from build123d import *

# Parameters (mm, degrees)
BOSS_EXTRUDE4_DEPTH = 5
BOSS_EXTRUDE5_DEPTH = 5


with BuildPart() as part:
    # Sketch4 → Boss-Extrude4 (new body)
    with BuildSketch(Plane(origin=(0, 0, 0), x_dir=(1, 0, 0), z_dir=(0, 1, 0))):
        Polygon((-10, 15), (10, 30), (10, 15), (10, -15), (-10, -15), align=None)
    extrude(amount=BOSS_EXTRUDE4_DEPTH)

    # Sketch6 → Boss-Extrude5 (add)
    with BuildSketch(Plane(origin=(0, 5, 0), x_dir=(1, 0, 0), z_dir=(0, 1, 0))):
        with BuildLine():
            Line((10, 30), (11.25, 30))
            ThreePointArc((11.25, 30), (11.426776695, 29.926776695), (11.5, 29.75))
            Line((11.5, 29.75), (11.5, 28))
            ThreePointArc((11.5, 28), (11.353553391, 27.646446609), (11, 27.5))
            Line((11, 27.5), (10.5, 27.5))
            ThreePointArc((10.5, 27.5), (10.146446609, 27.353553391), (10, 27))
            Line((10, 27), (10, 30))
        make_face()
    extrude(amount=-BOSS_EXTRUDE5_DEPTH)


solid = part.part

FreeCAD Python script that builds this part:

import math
import FreeCAD as App
import Part
import Sketcher
from FreeCAD import Vector
Q = App.Units.Quantity


def add_polygon(sketch, points):
    """Adds a closed chain of lines whose ends are joined by coincident constraints."""
    first, n = sketch.GeometryCount, len(points)
    for a, b in zip(points, points[1:] + points[:1]):
        sketch.addGeometry(Part.LineSegment(App.Vector(*a, 0), App.Vector(*b, 0)), False)
    for i in range(n):
        sketch.addConstraint(Sketcher.Constraint("Coincident", first + i, 2, first + (i + 1) % n, 1))

doc = App.newDocument("Part")
body = doc.addObject("PartDesign::Body", "Body")

# Sketch on XZ plane
sketch1 = doc.addObject("Sketcher::SketchObject", "Sketch")
body.addObject(sketch1)
sketch1.AttachmentSupport = (doc.XZ_Plane, [""])
sketch1.MapMode = "FlatFace"
add_polygon(sketch1, [(10, -30), (-10, -15), (-10, 15), (10, 15)])  # lines 0-3
sketch1.addConstraint([
    Sketcher.Constraint("Vertical", 1),
    Sketcher.Constraint("Horizontal", 2),
    Sketcher.Constraint("Vertical", 3),
    Sketcher.Constraint("Symmetric", 0, 2, 2, 2, -1, 1),
    Sketcher.Constraint("DistanceX", 2, 1, 2, 2, Q("20 mm")),
    Sketcher.Constraint("DistanceY", 1, 1, 1, 2, Q("30 mm")),
    Sketcher.Constraint("DistanceY", 3, 2, 3, 1, Q("45 mm")),
])
pad1 = doc.addObject("PartDesign::Pad", "Pad")
body.addObject(pad1)
pad1.Profile = sketch1
pad1.Length = 5
pad1.Reversed = True

# Sketch on XZ plane
sketch2 = doc.addObject("Sketcher::SketchObject", "Sketch001")
body.addObject(sketch2)
sketch2.AttachmentSupport = (doc.XZ_Plane, [""])
sketch2.MapMode = "FlatFace"
sketch2.AttachmentOffset = App.Placement(Vector(0, 0, -5), App.Rotation())
sketch2.addGeometry([
    Part.LineSegment(Vector(11.25, -30, 0), Vector(10, -30, 0)),  # 0
    Part.LineSegment(Vector(10, -30, 0), Vector(10, -27, 0)),  # 1
    Part.ArcOfCircle(Part.Circle(Vector(10.5, -27, 0), Vector(0, 0, 1), 0.5), math.radians(180), math.radians(270)),  # 2
    Part.LineSegment(Vector(10.5, -27.5, 0), Vector(11, -27.5, 0)),  # 3
    Part.ArcOfCircle(Part.Circle(Vector(11, -28, 0), Vector(0, 0, 1), 0.5), math.radians(0), math.radians(90)),  # 4
    Part.LineSegment(Vector(11.5, -28, 0), Vector(11.5, -29.75, 0)),  # 5
    Part.ArcOfCircle(Part.Circle(Vector(11.25, -29.75, 0), Vector(0, 0, 1), 0.25), math.radians(-90), math.radians(0)),  # 6
], False)
sketch2.addConstraint([
    Sketcher.Constraint("Coincident", 0, 2, 1, 1),
    Sketcher.Constraint("Tangent", 1, 2, 2, 1),
    Sketcher.Constraint("Tangent", 2, 2, 3, 1),
    Sketcher.Constraint("Tangent", 3, 2, 4, 2),
    Sketcher.Constraint("Tangent", 4, 1, 5, 1),
    Sketcher.Constraint("Tangent", 5, 2, 6, 2),
    Sketcher.Constraint("Tangent", 6, 1, 0, 1),
    Sketcher.Constraint("Horizontal", 0),
    Sketcher.Constraint("Vertical", 1),
    Sketcher.Constraint("Horizontal", 3),
    Sketcher.Constraint("Vertical", 5),
    Sketcher.Constraint("Equal", 2, 4),
    Sketcher.Constraint("Radius", 2, Q("0.5 mm")),
    Sketcher.Constraint("DistanceY", 1, 1, 1, 2, Q("3 mm")),
    Sketcher.Constraint("Radius", 6, Q("0.25 mm")),
    Sketcher.Constraint("DistanceX", 3, 1, 3, 2, Q("0.5 mm")),
    Sketcher.Constraint("DistanceY", 2, 3, -1, 1, Q("27 mm")),
    Sketcher.Constraint("DistanceX", -1, 1, 4, 3, Q("11 mm")),
])
pad2 = doc.addObject("PartDesign::Pad", "Pad001")
body.addObject(pad2)
pad2.Profile = sketch2
pad2.Length = 5

doc.recompute()
